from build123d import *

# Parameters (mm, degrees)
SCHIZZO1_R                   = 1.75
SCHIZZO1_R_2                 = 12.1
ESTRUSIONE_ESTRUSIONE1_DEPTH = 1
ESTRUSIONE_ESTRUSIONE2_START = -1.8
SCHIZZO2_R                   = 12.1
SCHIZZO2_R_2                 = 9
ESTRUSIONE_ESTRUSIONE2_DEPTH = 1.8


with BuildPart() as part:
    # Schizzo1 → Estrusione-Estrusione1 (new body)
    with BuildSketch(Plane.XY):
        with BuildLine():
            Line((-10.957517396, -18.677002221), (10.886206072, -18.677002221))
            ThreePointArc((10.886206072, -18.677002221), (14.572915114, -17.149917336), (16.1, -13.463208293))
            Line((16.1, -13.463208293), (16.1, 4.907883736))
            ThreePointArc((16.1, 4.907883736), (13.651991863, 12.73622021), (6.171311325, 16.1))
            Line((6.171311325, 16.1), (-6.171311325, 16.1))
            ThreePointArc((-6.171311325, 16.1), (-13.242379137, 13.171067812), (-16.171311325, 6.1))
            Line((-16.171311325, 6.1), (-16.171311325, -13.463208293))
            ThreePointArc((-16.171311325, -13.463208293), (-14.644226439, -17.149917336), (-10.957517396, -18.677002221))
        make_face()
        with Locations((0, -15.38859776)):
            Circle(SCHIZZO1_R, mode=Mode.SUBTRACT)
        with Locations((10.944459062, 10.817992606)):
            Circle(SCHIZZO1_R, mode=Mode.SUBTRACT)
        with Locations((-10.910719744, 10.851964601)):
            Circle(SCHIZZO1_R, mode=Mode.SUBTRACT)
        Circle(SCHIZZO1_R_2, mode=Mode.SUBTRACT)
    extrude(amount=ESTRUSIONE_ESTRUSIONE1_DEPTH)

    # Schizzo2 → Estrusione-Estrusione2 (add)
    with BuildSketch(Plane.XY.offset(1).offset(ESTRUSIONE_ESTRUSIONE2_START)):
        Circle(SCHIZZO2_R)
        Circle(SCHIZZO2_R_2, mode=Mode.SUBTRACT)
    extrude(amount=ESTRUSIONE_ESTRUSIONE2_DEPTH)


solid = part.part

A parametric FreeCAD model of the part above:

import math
import FreeCAD as App
import Part
import Sketcher

doc = App.newDocument("Part")
params = doc.addObject("Spreadsheet::Sheet", "Params")
for row, (alias, value) in enumerate([
    ("sketch1_radius", "10 mm"),
    ("sketch1_diameter", "3.5 mm"),
    ("sketch1_diameter2", "24.2 mm"),
    ("pad1_length", "1 mm"),
    ("sketch2_diameter", "18 mm"),
    ("sketch2_diameter2", "24.2 mm"),
    ("pad2_length", "1.8 mm"),
], start=1):
    params.set(f"A{row}", alias)
    params.set(f"B{row}", "=" + value)
    params.setAlias(f"B{row}", alias)

body = doc.addObject("PartDesign::Body", "Body")

# Sketch on XY plane
sketch1 = body.newObject("Sketcher::SketchObject", "Sketch")
sketch1.AttachmentSupport = (doc.getObject("XY_Plane"), [""])
sketch1.MapMode = "FlatFace"
sketch1.addGeometry([
    Part.LineSegment(App.Vector(-11, -18.7, 0), App.Vector(10.9, -18.7, 0)),  # 0
    Part.ArcOfCircle(Part.Circle(App.Vector(10.9, -13.5, 0), App.Vector(0, 0, 1), 5.2), math.radians(-90), math.radians(0)),  # 1
    Part.LineSegment(App.Vector(16.1, -13.5, 0), App.Vector(16.1, 4.9, 0)),  # 2
    Part.ArcOfCircle(Part.Circle(App.Vector(6.2, 6.1, 0), App.Vector(0, 0, 1), 10), math.radians(-7), math.radians(90)),  # 3
    Part.LineSegment(App.Vector(6.2, 16.1, 0), App.Vector(-6.2, 16.1, 0)),  # 4
    Part.ArcOfCircle(Part.Circle(App.Vector(-6.2, 6.1, 0), App.Vector(0, 0, 1), 10), math.radians(90), math.radians(180)),  # 5
    Part.LineSegment(App.Vector(-16.2, 6.1, 0), App.Vector(-16.2, -13.5, 0)),  # 6
    Part.ArcOfCircle(Part.Circle(App.Vector(-11, -13.5, 0), App.Vector(0, 0, 1), 5.2), math.radians(180), math.radians(270)),  # 7
    Part.Circle(App.Vector(0, -15.4, 0), App.Vector(0, 0, 1), 1.8),  # 8
    Part.Circle(App.Vector(0, 0, 0), App.Vector(0, 0, 1), 12.1),  # 9
    Part.Circle(App.Vector(-10.9, 10.9, 0), App.Vector(0, 0, 1), 1.8),  # 10
    Part.Circle(App.Vector(10.9, 10.8, 0), App.Vector(0, 0, 1), 1.8),  # 11
], False)
sketch1.addConstraint([
    Sketcher.Constraint("Tangent", 0, 2, 1, 1),
    Sketcher.Constraint("Tangent", 1, 2, 2, 1),
    Sketcher.Constraint("Coincident", 2, 2, 3, 1),
    Sketcher.Constraint("Tangent", 3, 2, 4, 1),
    Sketcher.Constraint("Tangent", 4, 2, 5, 1),
    Sketcher.Constraint("Tangent", 5, 2, 6, 1),
    Sketcher.Constraint("Tangent", 6, 2, 7, 1),
    Sketcher.Constraint("Tangent", 7, 2, 0, 1),
    Sketcher.Constraint("Horizontal", 0),
    Sketcher.Constraint("Vertical", 2),
    Sketcher.Constraint("Horizontal", 4),
    Sketcher.Constraint("Vertical", 6),
    Sketcher.Constraint("Coincident", 9, 3, -1, 1),
    Sketcher.Constraint("Equal", 3, 5),
    Sketcher.Constraint("Equal", 1, 7),
    Sketcher.Constraint("Equal", 8, 10),
    Sketcher.Constraint("Equal", 10, 11),
    Sketcher.Constraint("PointOnObject", 8, 3, -2),
    Sketcher.Constraint("Radius", 3, 10.0),
    Sketcher.Constraint("Diameter", 8, 3.5),
    Sketcher.Constraint("Diameter", 9, 24.2),
    Sketcher.Constraint("DistanceY", -1, 1, 3, 3, 6.1),
    Sketcher.Constraint("DistanceX", -1, 1, 1, 2, 16.1),
    Sketcher.Constraint("Radius", 1, 5.213794),
    Sketcher.Constraint("DistanceY", 6, 2, 6, 1, 19.563208),
    Sketcher.Constraint("DistanceY", 1, 3, 11, 3, 24.281201),
    Sketcher.Constraint("DistanceX", 0, 1, 0, 2, 21.843723),
    Sketcher.Constraint("DistanceX", 4, 2, 4, 1, 12.342623),
    Sketcher.Constraint("DistanceX", 10, 3, -1, 1, 10.91072),
    Sketcher.Constraint("DistanceX", -1, 1, 11, 3, 10.944459),
    Sketcher.Constraint("DistanceY", 8, 3, 1, 3, 1.925389),
    Sketcher.Constraint("DistanceY", 11, 3, 10, 3, 0.033972),
])
sketch1.setExpression("Constraints[18]", "Params.sketch1_radius")
sketch1.setExpression("Constraints[19]", "Params.sketch1_diameter")
sketch1.setExpression("Constraints[20]", "Params.sketch1_diameter2")
pad1 = body.newObject("PartDesign::Pad", "Pad")
pad1.Profile = sketch1
pad1.setExpression("Length", "Params.pad1_length")

# Sketch on XY plane
sketch2 = body.newObject("Sketcher::SketchObject", "Sketch001")
sketch2.AttachmentSupport = (doc.getObject("XY_Plane"), [""])
sketch2.MapMode = "FlatFace"
sketch2.AttachmentOffset = App.Placement(App.Vector(0, 0, -0.8), App.Rotation())
sketch2.addGeometry([
    Part.Circle(App.Vector(0, 0, 0), App.Vector(0, 0, 1), 12),
    Part.Circle(App.Vector(0, 0, 0), App.Vector(0, 0, 1), 9),
], False)
sketch2.addConstraint([
    Sketcher.Constraint("Coincident", 0, 3, -1, 1),
    Sketcher.Constraint("Coincident", 1, 3, -1, 1),
    Sketcher.Constraint("Diameter", 1, 18.0),
    Sketcher.Constraint("Diameter", 0, 24.2),
])
sketch2.setExpression("Constraints[2]", "Params.sketch2_diameter")
sketch2.setExpression("Constraints[3]", "Params.sketch2_diameter2")
pad2 = body.newObject("PartDesign::Pad", "Pad001")
pad2.Profile = sketch2
pad2.setExpression("Length", "Params.pad2_length")

doc.recompute()
